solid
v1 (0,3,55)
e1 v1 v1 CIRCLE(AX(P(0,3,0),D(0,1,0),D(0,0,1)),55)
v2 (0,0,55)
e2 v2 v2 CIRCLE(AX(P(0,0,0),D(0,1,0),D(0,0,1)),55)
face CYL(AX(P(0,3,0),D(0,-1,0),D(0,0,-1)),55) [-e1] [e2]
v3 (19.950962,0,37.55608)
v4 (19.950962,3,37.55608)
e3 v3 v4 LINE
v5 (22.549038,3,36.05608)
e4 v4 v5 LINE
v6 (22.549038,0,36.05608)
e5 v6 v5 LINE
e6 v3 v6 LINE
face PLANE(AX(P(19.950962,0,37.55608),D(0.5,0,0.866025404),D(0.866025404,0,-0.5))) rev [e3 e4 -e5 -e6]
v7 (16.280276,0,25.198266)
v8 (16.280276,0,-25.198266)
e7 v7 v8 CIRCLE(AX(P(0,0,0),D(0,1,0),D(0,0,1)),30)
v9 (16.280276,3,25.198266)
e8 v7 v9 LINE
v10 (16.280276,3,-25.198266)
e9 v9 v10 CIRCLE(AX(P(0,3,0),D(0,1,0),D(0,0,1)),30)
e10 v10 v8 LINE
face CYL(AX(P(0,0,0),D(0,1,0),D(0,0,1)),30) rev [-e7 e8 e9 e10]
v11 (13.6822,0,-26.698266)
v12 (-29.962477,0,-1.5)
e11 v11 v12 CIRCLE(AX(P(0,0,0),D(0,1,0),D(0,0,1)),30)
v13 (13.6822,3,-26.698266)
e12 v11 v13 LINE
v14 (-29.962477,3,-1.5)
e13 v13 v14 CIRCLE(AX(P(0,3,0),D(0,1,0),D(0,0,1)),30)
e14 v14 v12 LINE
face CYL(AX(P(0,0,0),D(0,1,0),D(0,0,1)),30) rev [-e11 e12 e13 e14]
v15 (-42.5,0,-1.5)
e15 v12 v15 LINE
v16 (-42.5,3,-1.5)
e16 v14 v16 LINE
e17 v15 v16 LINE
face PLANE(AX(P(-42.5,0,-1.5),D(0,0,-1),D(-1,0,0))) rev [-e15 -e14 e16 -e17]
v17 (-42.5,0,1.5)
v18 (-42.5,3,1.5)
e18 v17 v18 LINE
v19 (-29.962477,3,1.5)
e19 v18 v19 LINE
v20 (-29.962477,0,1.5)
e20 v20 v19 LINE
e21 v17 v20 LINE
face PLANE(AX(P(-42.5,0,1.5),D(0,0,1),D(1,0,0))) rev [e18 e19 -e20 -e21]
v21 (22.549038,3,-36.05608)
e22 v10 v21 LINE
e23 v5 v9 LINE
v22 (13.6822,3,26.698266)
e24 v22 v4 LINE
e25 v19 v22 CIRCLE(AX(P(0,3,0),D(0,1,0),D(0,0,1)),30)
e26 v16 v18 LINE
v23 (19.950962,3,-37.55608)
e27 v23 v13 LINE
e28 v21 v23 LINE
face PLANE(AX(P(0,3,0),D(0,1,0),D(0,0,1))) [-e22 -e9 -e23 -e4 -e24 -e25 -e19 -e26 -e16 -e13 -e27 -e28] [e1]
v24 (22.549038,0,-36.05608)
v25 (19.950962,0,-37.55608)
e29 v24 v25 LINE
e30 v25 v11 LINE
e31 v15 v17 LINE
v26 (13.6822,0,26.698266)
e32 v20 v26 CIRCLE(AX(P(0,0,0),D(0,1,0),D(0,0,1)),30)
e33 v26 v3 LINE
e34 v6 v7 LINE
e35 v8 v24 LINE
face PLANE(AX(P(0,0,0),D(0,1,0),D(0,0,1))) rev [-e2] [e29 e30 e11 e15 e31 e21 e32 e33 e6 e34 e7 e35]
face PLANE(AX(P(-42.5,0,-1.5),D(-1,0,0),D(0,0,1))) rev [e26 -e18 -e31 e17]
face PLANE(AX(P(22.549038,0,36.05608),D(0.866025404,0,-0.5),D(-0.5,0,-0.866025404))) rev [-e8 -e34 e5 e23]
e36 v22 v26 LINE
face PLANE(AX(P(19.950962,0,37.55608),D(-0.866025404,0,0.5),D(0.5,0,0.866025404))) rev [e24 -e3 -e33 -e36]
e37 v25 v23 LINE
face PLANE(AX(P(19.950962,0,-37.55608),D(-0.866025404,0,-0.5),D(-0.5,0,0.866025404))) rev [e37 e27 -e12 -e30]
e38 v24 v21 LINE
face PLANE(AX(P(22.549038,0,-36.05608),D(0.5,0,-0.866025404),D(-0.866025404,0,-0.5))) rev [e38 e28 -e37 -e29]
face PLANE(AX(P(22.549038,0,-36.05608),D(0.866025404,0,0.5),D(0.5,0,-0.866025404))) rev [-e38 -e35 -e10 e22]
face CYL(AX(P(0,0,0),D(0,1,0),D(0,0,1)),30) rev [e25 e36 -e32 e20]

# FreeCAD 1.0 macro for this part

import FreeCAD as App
import Part
import Sketcher

V = App.Vector


def add_polygon(sketch, points):
    """Adds a closed chain of lines whose ends are joined by coincident constraints."""
    first, n = sketch.GeometryCount, len(points)
    for a, b in zip(points, points[1:] + points[:1]):
        sketch.addGeometry(Part.LineSegment(App.Vector(*a, 0), App.Vector(*b, 0)), False)
    for i in range(n):
        sketch.addConstraint(Sketcher.Constraint("Coincident", first + i, 2, first + (i + 1) % n, 1))

doc = App.newDocument("Part")
body = doc.addObject("PartDesign::Body", "Body")

# Sketch on XZ plane
sketch1 = body.newObject("Sketcher::SketchObject", "Sketch")
sketch1.AttachmentSupport = (doc.getObject("XZ_Plane"), [""])
sketch1.MapMode = "FlatFace"
sketch1.addGeometry(Part.Circle(V(0, 0, 0), V(0, 0, 1), 55), False)
sketch1.addConstraint(Sketcher.Constraint("Coincident", 0, 3, -1, 1))
sketch1.addConstraint(Sketcher.Constraint("Diameter", 0, 110.0))
pad1 = body.newObject("PartDesign::Pad", "Pad")
pad1.Profile = sketch1
pad1.Length = 3
pad1.Reversed = True

# Sketch on XZ plane
sketch2 = body.newObject("Sketcher::SketchObject", "Sketch001")
sketch2.AttachmentSupport = (doc.getObject("XZ_Plane"), [""])
sketch2.MapMode = "FlatFace"
sketch2.AttachmentOffset = App.Placement(V(0, 0, -3), App.Rotation())
sketch2.addGeometry(Part.Circle(V(0, 0, 0), V(0, 0, 1), 30), False)
sketch2.addConstraint(Sketcher.Constraint("Coincident", 0, 3, -1, 1))
sketch2.addConstraint(Sketcher.Constraint("Diameter", 0, 60.0))
pocket1 = body.newObject("PartDesign::Pocket", "Pocket")
pocket1.Profile = sketch2
pocket1.Length = 3
pocket1.Reversed = True

# Sketch on XZ plane
sketch3 = body.newObject("Sketcher::SketchObject", "Sketch002")
sketch3.AttachmentSupport = (doc.getObject("XZ_Plane"), [""])
sketch3.MapMode = "FlatFace"
sketch3.AttachmentOffset = App.Placement(V(0, 0, -3), App.Rotation())
add_polygon(sketch3, [(-42.5, -1.5), (-42.5, 1.5), (-17.5, 1.5), (-17.5, -1.5)])  # lines 0-3
sketch3.addConstraint(Sketcher.Constraint("Vertical", 0))
sketch3.addConstraint(Sketcher.Constraint("Horizontal", 1))
sketch3.addConstraint(Sketcher.Constraint("Vertical", 2))
sketch3.addConstraint(Sketcher.Constraint("Horizontal", 3))
sketch3.addConstraint(Sketcher.Constraint("DistanceX", 1, 1, 1, 2, 25.0))
sketch3.addConstraint(Sketcher.Constraint("DistanceY", 0, 1, 0, 2, 3.0))
sketch3.addConstraint(Sketcher.Constraint("DistanceX", 0, 2, -1, 1, 42.5))
sketch3.addConstraint(Sketcher.Constraint("DistanceY", -1, 1, 0, 2, 1.5))
pocket2 = body.newObject("PartDesign::Pocket", "Pocket001")
pocket2.Profile = sketch3
pocket2.Length = 3
pocket2.Reversed = True
doc.recompute()

polarpattern = body.newObject("PartDesign::PolarPattern", "PolarPattern")
polarpattern.Originals = [pocket2]
polarpattern.Axis = (doc.getObject("Y_Axis"), [""])
polarpattern.Angle = 360
polarpattern.Occurrences = 3
body.Tip = polarpattern

doc.recompute()
